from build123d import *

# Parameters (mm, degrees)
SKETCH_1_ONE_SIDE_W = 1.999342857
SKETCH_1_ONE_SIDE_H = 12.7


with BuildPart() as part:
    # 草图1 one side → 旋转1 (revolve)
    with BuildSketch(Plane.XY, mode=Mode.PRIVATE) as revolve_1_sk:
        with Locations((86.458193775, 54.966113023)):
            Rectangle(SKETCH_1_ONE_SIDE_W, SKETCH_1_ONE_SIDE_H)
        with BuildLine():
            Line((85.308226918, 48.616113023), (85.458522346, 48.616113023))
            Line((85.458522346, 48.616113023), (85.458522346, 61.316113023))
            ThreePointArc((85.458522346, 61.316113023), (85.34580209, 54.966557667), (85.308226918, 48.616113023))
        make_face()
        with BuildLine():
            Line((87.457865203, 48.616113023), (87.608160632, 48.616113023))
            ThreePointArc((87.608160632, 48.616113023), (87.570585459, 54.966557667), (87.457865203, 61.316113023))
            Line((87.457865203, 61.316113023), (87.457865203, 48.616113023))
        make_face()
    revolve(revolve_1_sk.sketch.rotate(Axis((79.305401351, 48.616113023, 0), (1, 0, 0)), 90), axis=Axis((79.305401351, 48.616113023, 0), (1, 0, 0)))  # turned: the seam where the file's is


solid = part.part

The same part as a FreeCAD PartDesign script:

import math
import FreeCAD as App
import Part
import Sketcher

V = App.Vector

doc = App.newDocument("Part")
body = doc.addObject("PartDesign::Body", "Body")

sketch1 = body.newObject("Sketcher::SketchObject", "Sketch")
sketch1.AttachmentSupport = (doc.getObject("XY_Plane"), [""])
sketch1.MapMode = "FlatFace"
sketch1.addGeometry([
    Part.LineSegment(V(87.5, 61.3, 0), V(85.5, 61.3, 0)),
    Part.ArcOfCircle(Part.Circle(V(622, 48.6, 0), V(0, 0, 1), 536.7), math.radians(178.64), math.radians(180)),
    Part.LineSegment(V(85.3, 48.6, 0), V(87.6, 48.6, 0)),
    Part.ArcOfCircle(Part.Circle(V(-449, 48.6, 0), V(0, 0, 1), 536.7), math.radians(0), math.radians(1.36)),
], False)
sketch1.addGeometry(Part.LineSegment(V(-449, 48.6, 0), V(622, 48.6, 0)), True)
sketch1.addConstraint([
    Sketcher.Constraint("Coincident", 0, 2, 1, 1),
    Sketcher.Constraint("Coincident", 1, 2, 2, 1),
    Sketcher.Constraint("Coincident", 2, 2, 3, 1),
    Sketcher.Constraint("Coincident", 3, 2, 0, 1),
    Sketcher.Constraint("Horizontal", 0),
    Sketcher.Constraint("Horizontal", 2),
    Sketcher.Constraint("Horizontal", 4),
    Sketcher.Constraint("Coincident", 4, 1, 3, 3),
    Sketcher.Constraint("Coincident", 4, 2, 1, 3),
    Sketcher.Constraint("Horizontal", 2, 2, 4, 1),
    Sketcher.Constraint("DistanceY", 3, 3, 0, 2, 12.7),
    Sketcher.Constraint("Radius", 1, 536.651676),
    Sketcher.Constraint("Radius", 3, 536.651683),
    Sketcher.Constraint("DistanceX", 0, 2, 0, 1, 1.999343),
    Sketcher.Constraint("DistanceX", -1, 1, 2, 2, 87.608161),
    Sketcher.Constraint("DistanceY", -1, 1, 1, 3, 48.616113),
])
revolution = body.newObject("PartDesign::Revolution", "Revolution")
revolution.Profile = sketch1
revolution.ReferenceAxis = (sketch1, ["Axis0"])
revolution.Angle = 360

doc.recompute()
